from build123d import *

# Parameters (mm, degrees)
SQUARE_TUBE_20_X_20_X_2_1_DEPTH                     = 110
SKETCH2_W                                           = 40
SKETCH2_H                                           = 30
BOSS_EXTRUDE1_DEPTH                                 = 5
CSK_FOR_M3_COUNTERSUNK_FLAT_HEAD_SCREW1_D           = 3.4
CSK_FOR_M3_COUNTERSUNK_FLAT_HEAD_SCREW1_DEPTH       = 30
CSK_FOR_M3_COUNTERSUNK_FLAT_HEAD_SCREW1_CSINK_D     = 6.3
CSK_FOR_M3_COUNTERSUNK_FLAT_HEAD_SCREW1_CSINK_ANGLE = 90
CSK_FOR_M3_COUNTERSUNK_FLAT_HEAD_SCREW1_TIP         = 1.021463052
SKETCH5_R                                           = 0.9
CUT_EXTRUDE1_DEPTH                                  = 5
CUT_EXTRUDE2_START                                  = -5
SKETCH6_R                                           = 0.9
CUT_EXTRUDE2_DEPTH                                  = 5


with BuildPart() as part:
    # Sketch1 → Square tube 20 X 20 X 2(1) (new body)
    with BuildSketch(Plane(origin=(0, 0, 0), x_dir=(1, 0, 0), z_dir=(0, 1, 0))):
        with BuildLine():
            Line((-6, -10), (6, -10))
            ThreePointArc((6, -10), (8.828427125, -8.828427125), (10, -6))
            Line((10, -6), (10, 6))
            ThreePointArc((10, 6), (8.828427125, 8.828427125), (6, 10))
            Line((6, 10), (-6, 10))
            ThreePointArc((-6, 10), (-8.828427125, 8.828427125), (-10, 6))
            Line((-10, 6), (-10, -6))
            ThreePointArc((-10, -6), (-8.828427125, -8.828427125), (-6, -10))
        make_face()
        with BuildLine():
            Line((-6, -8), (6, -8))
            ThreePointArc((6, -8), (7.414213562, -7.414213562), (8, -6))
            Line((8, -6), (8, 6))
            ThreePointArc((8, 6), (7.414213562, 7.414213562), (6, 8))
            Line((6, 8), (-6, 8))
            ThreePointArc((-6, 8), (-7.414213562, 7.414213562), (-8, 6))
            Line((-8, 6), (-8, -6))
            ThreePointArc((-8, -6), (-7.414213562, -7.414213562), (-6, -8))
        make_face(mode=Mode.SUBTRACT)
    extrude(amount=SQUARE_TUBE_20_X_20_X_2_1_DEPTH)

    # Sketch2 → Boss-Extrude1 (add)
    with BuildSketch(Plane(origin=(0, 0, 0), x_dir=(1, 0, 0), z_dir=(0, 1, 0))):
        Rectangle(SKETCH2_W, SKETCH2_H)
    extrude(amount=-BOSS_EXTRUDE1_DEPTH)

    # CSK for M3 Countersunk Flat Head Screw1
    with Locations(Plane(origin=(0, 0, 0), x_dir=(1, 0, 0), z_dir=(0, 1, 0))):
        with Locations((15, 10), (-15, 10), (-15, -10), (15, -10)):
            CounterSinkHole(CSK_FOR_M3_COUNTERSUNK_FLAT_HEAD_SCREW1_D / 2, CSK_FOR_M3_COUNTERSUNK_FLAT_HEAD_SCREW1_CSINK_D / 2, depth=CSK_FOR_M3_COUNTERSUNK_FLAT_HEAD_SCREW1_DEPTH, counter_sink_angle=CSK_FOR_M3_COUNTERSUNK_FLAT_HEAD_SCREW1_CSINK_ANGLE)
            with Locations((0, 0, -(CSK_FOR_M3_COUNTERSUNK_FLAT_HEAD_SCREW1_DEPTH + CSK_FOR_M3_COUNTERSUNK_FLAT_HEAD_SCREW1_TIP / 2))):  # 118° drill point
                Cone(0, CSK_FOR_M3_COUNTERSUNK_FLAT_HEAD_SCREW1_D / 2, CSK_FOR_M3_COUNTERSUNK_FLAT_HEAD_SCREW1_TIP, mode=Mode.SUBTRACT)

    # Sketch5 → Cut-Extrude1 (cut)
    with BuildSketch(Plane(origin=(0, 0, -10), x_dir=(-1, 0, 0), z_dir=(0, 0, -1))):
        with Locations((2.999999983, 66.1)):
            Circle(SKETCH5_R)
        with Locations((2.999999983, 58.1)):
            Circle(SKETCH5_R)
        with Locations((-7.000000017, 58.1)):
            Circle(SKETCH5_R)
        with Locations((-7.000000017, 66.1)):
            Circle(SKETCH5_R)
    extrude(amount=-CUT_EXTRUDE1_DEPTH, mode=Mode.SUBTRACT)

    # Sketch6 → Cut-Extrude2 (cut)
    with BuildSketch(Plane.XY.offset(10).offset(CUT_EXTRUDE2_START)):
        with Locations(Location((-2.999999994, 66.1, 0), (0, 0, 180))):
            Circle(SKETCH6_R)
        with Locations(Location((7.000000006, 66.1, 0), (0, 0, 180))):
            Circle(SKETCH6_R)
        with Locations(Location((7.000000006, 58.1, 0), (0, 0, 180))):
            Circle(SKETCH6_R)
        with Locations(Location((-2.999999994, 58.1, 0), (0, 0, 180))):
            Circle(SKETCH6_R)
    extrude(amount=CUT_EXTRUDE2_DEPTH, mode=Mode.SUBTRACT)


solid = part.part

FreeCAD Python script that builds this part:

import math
import FreeCAD as App
import Part
import Sketcher

V = App.Vector
Q = App.Units.Quantity


def add_polygon(sketch, points):
    """Adds a closed chain of lines whose ends are joined by coincident constraints."""
    first, n = sketch.GeometryCount, len(points)
    for a, b in zip(points, points[1:] + points[:1]):
        sketch.addGeometry(Part.LineSegment(App.Vector(*a, 0), App.Vector(*b, 0)), False)
    for i in range(n):
        sketch.addConstraint(Sketcher.Constraint("Coincident", first + i, 2, first + (i + 1) % n, 1))

doc = App.newDocument("Part")
params = doc.addObject("Spreadsheet::Sheet", "Params")
for row, (alias, value) in enumerate([
    ("sketch1_radius", "4 mm"),
    ("sketch1_radius2", "2 mm"),
    ("sketch1_width", "12 mm"),
    ("pad1_length", "110 mm"),
    ("sketch2_width", "40 mm"),
    ("sketch2_height", "30 mm"),
    ("pad2_length", "5 mm"),
    ("sketch3_diameter", "3.4 mm"),
    ("hole_diameter", "3.4 mm"),
    ("hole_depth", "30 mm"),
    ("hole_csink_diameter", "6.3 mm"),
    ("sketch4_diameter", "1.8 mm"),
    ("pocket1_length", "5 mm"),
    ("sketch5_diameter", "1.8 mm"),
    ("pocket2_length", "5 mm"),
], start=1):
    params.set(f"A{row}", alias)
    params.set(f"B{row}", "=" + value)
    params.setAlias(f"B{row}", alias)

body = doc.addObject("PartDesign::Body", "Body")

sketch1 = doc.addObject("Sketcher::SketchObject", "Sketch")
body.addObject(sketch1)
sketch1.AttachmentSupport = (doc.XZ_Plane, [""])
sketch1.MapMode = "FlatFace"
sketch1.addGeometry([
    Part.LineSegment(V(-6, 10, 0), V(6, 10, 0)),
    Part.ArcOfCircle(Part.Circle(V(6, 6, 0), V(0, 0, 1), 4), math.radians(0), math.radians(90)),
    Part.LineSegment(V(10, 6, 0), V(10, -6, 0)),
    Part.ArcOfCircle(Part.Circle(V(6, -6, 0), V(0, 0, 1), 4), math.radians(-90), math.radians(0)),
    Part.LineSegment(V(6, -10, 0), V(-6, -10, 0)),
    Part.ArcOfCircle(Part.Circle(V(-6, -6, 0), V(0, 0, 1), 4), math.radians(180), math.radians(270)),
    Part.LineSegment(V(-10, -6, 0), V(-10, 6, 0)),
    Part.ArcOfCircle(Part.Circle(V(-6, 6, 0), V(0, 0, 1), 4), math.radians(90), math.radians(180)),
    Part.LineSegment(V(6, 8, 0), V(-6, 8, 0)),
    Part.ArcOfCircle(Part.Circle(V(-6, 6, 0), V(0, 0, 1), 2), math.radians(90), math.radians(180)),
    Part.LineSegment(V(-8, 6, 0), V(-8, -6, 0)),
    Part.ArcOfCircle(Part.Circle(V(-6, -6, 0), V(0, 0, 1), 2), math.radians(-180), math.radians(-90)),
    Part.LineSegment(V(-6, -8, 0), V(6, -8, 0)),
    Part.ArcOfCircle(Part.Circle(V(6, -6, 0), V(0, 0, 1), 2), math.radians(-90), math.radians(0)),
    Part.LineSegment(V(8, -6, 0), V(8, 6, 0)),
    Part.ArcOfCircle(Part.Circle(V(6, 6, 0), V(0, 0, 1), 2), math.radians(0), math.radians(90)),
], False)
sketch1.addConstraint([
    Sketcher.Constraint("Tangent", 0, 2, 1, 2),
    Sketcher.Constraint("Tangent", 1, 1, 2, 1),
    Sketcher.Constraint("Tangent", 2, 2, 3, 2),
    Sketcher.Constraint("Tangent", 3, 1, 4, 1),
    Sketcher.Constraint("Tangent", 4, 2, 5, 2),
    Sketcher.Constraint("Tangent", 5, 1, 6, 1),
    Sketcher.Constraint("Tangent", 6, 2, 7, 2),
    Sketcher.Constraint("Tangent", 7, 1, 0, 1),
    Sketcher.Constraint("Tangent", 8, 2, 9, 1),
    Sketcher.Constraint("Tangent", 9, 2, 10, 1),
    Sketcher.Constraint("Tangent", 10, 2, 11, 1),
    Sketcher.Constraint("Tangent", 11, 2, 12, 1),
    Sketcher.Constraint("Tangent", 12, 2, 13, 1),
    Sketcher.Constraint("Tangent", 13, 2, 14, 1),
    Sketcher.Constraint("Tangent", 14, 2, 15, 1),
    Sketcher.Constraint("Tangent", 15, 2, 8, 1),
    Sketcher.Constraint("Horizontal", 0),
    Sketcher.Constraint("Vertical", 2),
    Sketcher.Constraint("Horizontal", 4),
    Sketcher.Constraint("Vertical", 6),
    Sketcher.Constraint("Horizontal", 8),
    Sketcher.Constraint("Vertical", 10),
    Sketcher.Constraint("Horizontal", 12),
    Sketcher.Constraint("Vertical", 14),
    Sketcher.Constraint("Coincident", 9, 3, 7, 3),
    Sketcher.Constraint("Coincident", 11, 3, 5, 3),
    Sketcher.Constraint("Coincident", 13, 3, 3, 3),
    Sketcher.Constraint("Equal", 1, 3),
    Sketcher.Constraint("Equal", 3, 5),
    Sketcher.Constraint("Equal", 5, 7),
    Sketcher.Constraint("Equal", 13, 15),
    Sketcher.Constraint("Symmetric", 1, 3, 5, 3, -1, 1),
    Sketcher.Constraint("Equal", 12, 2),
    Sketcher.Constraint("Radius", 1, Q("4 mm")),
    Sketcher.Constraint("Radius", 9, Q("2 mm")),
    Sketcher.Constraint("DistanceX", 0, 1, 0, 2, Q("12 mm")),
])
sketch1.setExpression("Constraints[33]", "Params.sketch1_radius")
sketch1.setExpression("Constraints[34]", "Params.sketch1_radius2")
sketch1.setExpression("Constraints[35]", "Params.sketch1_width")
pad1 = doc.addObject("PartDesign::Pad", "Pad")
body.addObject(pad1)
pad1.Profile = sketch1
pad1.setExpression("Length", "Params.pad1_length")
pad1.Reversed = True

sketch2 = doc.addObject("Sketcher::SketchObject", "Sketch001")
body.addObject(sketch2)
sketch2.AttachmentSupport = (doc.XZ_Plane, [""])
sketch2.MapMode = "FlatFace"
add_polygon(sketch2, [(-20, -15), (-20, 15), (20, 15), (20, -15)])
sketch2.addConstraint([
    Sketcher.Constraint("Vertical", 0),
    Sketcher.Constraint("Horizontal", 1),
    Sketcher.Constraint("Vertical", 2),
    Sketcher.Constraint("Horizontal", 3),
    Sketcher.Constraint("Symmetric", 0, 2, 2, 2, -1, 1),
    Sketcher.Constraint("DistanceX", 1, 1, 1, 2, Q("40 mm")),
    Sketcher.Constraint("DistanceY", 0, 1, 0, 2, Q("30 mm")),
])
sketch2.setExpression("Constraints[9]", "Params.sketch2_width")
sketch2.setExpression("Constraints[10]", "Params.sketch2_height")
pad2 = doc.addObject("PartDesign::Pad", "Pad001")
body.addObject(pad2)
pad2.Profile = sketch2
pad2.setExpression("Length", "Params.pad2_length")

sketch3 = doc.addObject("Sketcher::SketchObject", "Sketch002")
body.addObject(sketch3)
sketch3.AttachmentSupport = (doc.XZ_Plane, [""])
sketch3.MapMode = "FlatFace"
sketch3.addGeometry([
    Part.Circle(V(15, -10, 0), V(0, 0, 1), 1.7),
    Part.Circle(V(-15, -10, 0), V(0, 0, 1), 1.7),
    Part.Circle(V(-15, 10, 0), V(0, 0, 1), 1.7),
    Part.Circle(V(15, 10, 0), V(0, 0, 1), 1.7),
], False)
sketch3.addConstraint([
    Sketcher.Constraint("Equal", 0, 1),
    Sketcher.Constraint("Equal", 1, 2),
    Sketcher.Constraint("Equal", 2, 3),
    Sketcher.Constraint("Symmetric", 0, 3, 2, 3, -1, 1),
    Sketcher.Constraint("Symmetric", 1, 3, 3, 3, -1, 1),
    Sketcher.Constraint("Symmetric", 0, 3, 1, 3, -2),
    Sketcher.Constraint("Diameter", 0, Q("3.4 mm")),
    Sketcher.Constraint("DistanceX", -1, 1, 0, 3, Q("15 mm")),
    Sketcher.Constraint("DistanceY", 0, 3, -1, 1, Q("10 mm")),
])
sketch3.setExpression("Constraints[6]", "Params.sketch3_diameter")
doc.recompute()
hole = doc.addObject("PartDesign::Hole", "Hole")
body.addObject(hole)
hole.Profile = sketch3
hole.ThreadType = "None"
hole.setExpression("Diameter", "Params.hole_diameter")
hole.DepthType = "Dimension"
hole.setExpression("Depth", "Params.hole_depth")
hole.DrillPoint = "Angled"
hole.DrillPointAngle = 118
hole.HoleCutType = "Countersink"
hole.setExpression("HoleCutDiameter", "Params.hole_csink_diameter")
hole.HoleCutCountersinkAngle = 90
hole.Reversed = True

sketch4 = doc.addObject("Sketcher::SketchObject", "Sketch003")
body.addObject(sketch4)
sketch4.AttachmentSupport = (doc.XY_Plane, [""])
sketch4.MapMode = "FlatFace"
sketch4.AttachmentOffset = App.Placement(V(0, 0, -10), App.Rotation())
sketch4.addGeometry([
    Part.Circle(V(-3, 66.1, 0), V(0, 0, 1), 0.9),
    Part.Circle(V(-3, 58.1, 0), V(0, 0, 1), 0.9),
    Part.Circle(V(7, 58.1, 0), V(0, 0, 1), 0.9),
    Part.Circle(V(7, 66.1, 0), V(0, 0, 1), 0.9),
], False)
sketch4.addConstraint([
    Sketcher.Constraint("Equal", 0, 1),
    Sketcher.Constraint("Equal", 1, 2),
    Sketcher.Constraint("Equal", 2, 3),
    Sketcher.Constraint("Horizontal", 1, 3, 2, 3),
    Sketcher.Constraint("Horizontal", 0, 3, 3, 3),
    Sketcher.Constraint("Vertical", 0, 3, 1, 3),
    Sketcher.Constraint("Vertical", 2, 3, 3, 3),
    Sketcher.Constraint("Diameter", 0, Q("1.8 mm")),
    Sketcher.Constraint("DistanceX", 0, 3, -1, 1, Q("3 mm")),
    Sketcher.Constraint("DistanceX", -1, 1, 2, 3, Q("7 mm")),
    Sketcher.Constraint("DistanceY", 1, 3, 0, 3, Q("8 mm")),
    Sketcher.Constraint("DistanceY", -1, 1, 0, 3, Q("66.1 mm")),
])
sketch4.setExpression("Constraints[7]", "Params.sketch4_diameter")
pocket1 = doc.addObject("PartDesign::Pocket", "Pocket")
body.addObject(pocket1)
pocket1.Profile = sketch4
pocket1.setExpression("Length", "Params.pocket1_length")
pocket1.Reversed = True

sketch5 = doc.addObject("Sketcher::SketchObject", "Sketch004")
body.addObject(sketch5)
sketch5.AttachmentSupport = (doc.XY_Plane, [""])
sketch5.MapMode = "FlatFace"
sketch5.AttachmentOffset = App.Placement(V(0, 0, 5), App.Rotation())
sketch5.addGeometry([
    Part.Circle(V(-3, 66.1, 0), V(0, 0, 1), 0.9),
    Part.Circle(V(7, 66.1, 0), V(0, 0, 1), 0.9),
    Part.Circle(V(7, 58.1, 0), V(0, 0, 1), 0.9),
    Part.Circle(V(-3, 58.1, 0), V(0, 0, 1), 0.9),
], False)
sketch5.addConstraint([
    Sketcher.Constraint("Equal", 0, 1),
    Sketcher.Constraint("Equal", 1, 2),
    Sketcher.Constraint("Equal", 2, 3),
    Sketcher.Constraint("Horizontal", 0, 3, 1, 3),
    Sketcher.Constraint("Horizontal", 2, 3, 3, 3),
    Sketcher.Constraint("Vertical", 1, 3, 2, 3),
    Sketcher.Constraint("Vertical", 0, 3, 3, 3),
    Sketcher.Constraint("Diameter", 0, Q("1.8 mm")),
    Sketcher.Constraint("DistanceX", 0, 3, -1, 1, Q("3 mm")),
    Sketcher.Constraint("DistanceX", -1, 1, 1, 3, Q("7 mm")),
    Sketcher.Constraint("DistanceY", 2, 3, 1, 3, Q("8 mm")),
    Sketcher.Constraint("DistanceY", -1, 1, 0, 3, Q("66.1 mm")),
])
sketch5.setExpression("Constraints[7]", "Params.sketch5_diameter")
pocket2 = doc.addObject("PartDesign::Pocket", "Pocket001")
body.addObject(pocket2)
pocket2.Profile = sketch5
pocket2.setExpression("Length", "Params.pocket2_length")
pocket2.Reversed = True

doc.recompute()
